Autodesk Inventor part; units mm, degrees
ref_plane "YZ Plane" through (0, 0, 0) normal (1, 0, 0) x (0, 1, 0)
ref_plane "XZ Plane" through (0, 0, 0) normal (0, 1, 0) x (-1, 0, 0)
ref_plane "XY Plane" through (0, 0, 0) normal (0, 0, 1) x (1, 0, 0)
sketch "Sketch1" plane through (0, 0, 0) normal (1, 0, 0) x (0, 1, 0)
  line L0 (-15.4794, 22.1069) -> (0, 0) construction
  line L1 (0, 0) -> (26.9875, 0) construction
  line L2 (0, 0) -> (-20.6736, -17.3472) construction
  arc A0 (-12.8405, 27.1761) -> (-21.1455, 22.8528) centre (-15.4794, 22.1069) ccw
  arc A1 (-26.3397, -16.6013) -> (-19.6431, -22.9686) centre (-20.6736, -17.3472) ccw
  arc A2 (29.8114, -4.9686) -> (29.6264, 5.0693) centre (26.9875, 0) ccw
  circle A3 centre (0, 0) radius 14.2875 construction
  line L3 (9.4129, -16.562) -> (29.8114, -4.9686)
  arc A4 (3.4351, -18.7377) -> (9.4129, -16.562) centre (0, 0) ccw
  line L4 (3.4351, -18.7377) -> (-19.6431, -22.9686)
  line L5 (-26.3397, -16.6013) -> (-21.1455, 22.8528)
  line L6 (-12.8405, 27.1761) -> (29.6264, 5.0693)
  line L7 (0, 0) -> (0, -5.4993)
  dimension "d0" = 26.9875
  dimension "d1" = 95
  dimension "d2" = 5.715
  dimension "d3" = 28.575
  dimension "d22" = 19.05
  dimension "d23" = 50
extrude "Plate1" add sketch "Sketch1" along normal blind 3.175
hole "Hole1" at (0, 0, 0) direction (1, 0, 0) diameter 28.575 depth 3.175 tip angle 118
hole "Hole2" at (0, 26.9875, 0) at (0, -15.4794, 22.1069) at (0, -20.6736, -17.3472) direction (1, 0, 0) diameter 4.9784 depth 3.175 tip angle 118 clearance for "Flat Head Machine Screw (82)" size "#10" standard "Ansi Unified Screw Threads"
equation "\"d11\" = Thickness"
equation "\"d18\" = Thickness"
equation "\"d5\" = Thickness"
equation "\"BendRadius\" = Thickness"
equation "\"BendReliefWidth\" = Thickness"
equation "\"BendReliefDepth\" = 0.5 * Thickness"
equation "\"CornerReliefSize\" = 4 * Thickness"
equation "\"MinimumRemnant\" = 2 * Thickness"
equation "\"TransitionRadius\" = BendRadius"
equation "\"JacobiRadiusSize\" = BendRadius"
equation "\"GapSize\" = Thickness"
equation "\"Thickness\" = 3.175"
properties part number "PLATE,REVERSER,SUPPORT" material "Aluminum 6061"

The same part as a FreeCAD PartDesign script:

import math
import FreeCAD as App
import Part
import Sketcher
Q = App.Units.Quantity

doc = App.newDocument("Part")
body = doc.addObject("PartDesign::Body", "Body")

sketch1 = body.newObject("Sketcher::SketchObject", "Sketch")
sketch1.AttachmentSupport = (doc.getObject("YZ_Plane"), [""])
sketch1.MapMode = "FlatFace"
sketch1.addGeometry(Part.LineSegment(App.Vector(29.6264, 5.0693, 0), App.Vector(-12.8405, 27.1761, 0)), False)
sketch1.addGeometry(Part.ArcOfCircle(Part.Circle(App.Vector(-15.4794, 22.1069, 0), App.Vector(0, 0, 1), 5.714944), math.radians(62.499631), math.radians(172.500559)), False)
sketch1.addGeometry(Part.LineSegment(App.Vector(-21.1455, 22.8528, 0), App.Vector(-26.3397, -16.6013, 0)), False)
sketch1.addGeometry(Part.ArcOfCircle(Part.Circle(App.Vector(-20.6736, -17.3472, 0), App.Vector(0, 0, 1), 5.714985), math.radians(172.500559), math.radians(280.38797)), False)
sketch1.addGeometry(Part.LineSegment(App.Vector(-19.6431, -22.9686, 0), App.Vector(3.4351, -18.7377, 0)), False)
sketch1.addGeometry(Part.ArcOfCircle(Part.Circle(App.Vector(-0.000299, 0.001102, 0), App.Vector(0, 0, 1), 19.051107), math.radians(-79.611283), math.radians(-60.389415)), False)
sketch1.addGeometry(Part.LineSegment(App.Vector(9.4129, -16.562, 0), App.Vector(29.8114, -4.9686, 0)), False)
sketch1.addGeometry(Part.ArcOfCircle(Part.Circle(App.Vector(26.9875, 0, 0), App.Vector(0, 0, 1), 5.715015), math.radians(-60.388299), math.radians(62.500094)), False)
sketch1.addConstraint(Sketcher.Constraint("Tangent", 0, 2, 1, 1))
sketch1.addConstraint(Sketcher.Constraint("Tangent", 1, 2, 2, 1))
sketch1.addConstraint(Sketcher.Constraint("Tangent", 2, 2, 3, 1))
sketch1.addConstraint(Sketcher.Constraint("Tangent", 3, 2, 4, 1))
sketch1.addConstraint(Sketcher.Constraint("Tangent", 4, 2, 5, 1))
sketch1.addConstraint(Sketcher.Constraint("Tangent", 5, 2, 6, 1))
sketch1.addConstraint(Sketcher.Constraint("Tangent", 6, 2, 7, 1))
sketch1.addConstraint(Sketcher.Constraint("Tangent", 7, 2, 0, 1))
sketch1.addConstraint(Sketcher.Constraint("Equal", 1, 3))
sketch1.addConstraint(Sketcher.Constraint("Equal", 3, 7))
sketch1.addConstraint(Sketcher.Constraint("PointOnObject", 7, 3, -1))
sketch1.addConstraint(Sketcher.Constraint("Equal", 4, 6))
sketch1.addConstraint(Sketcher.Constraint("Radius", 1, Q("0.225 in")))
sketch1.addConstraint(Sketcher.Constraint("DistanceX", 5, 3, -1, 1, Q("0 in")))
sketch1.addConstraint(Sketcher.Constraint("DistanceX", -1, 1, 7, 3, Q("1.0625 in")))
sketch1.addConstraint(Sketcher.Constraint("Angle", 0, Q("152.5 deg")))
sketch1.addConstraint(Sketcher.Constraint("Angle", 2, Q("-97.5 deg")))
sketch1.addConstraint(Sketcher.Constraint("Radius", 5, Q("19.051 mm")))
sketch1.addConstraint(Sketcher.Constraint("DistanceX", 2, 2, -1, 1, Q("1.037 in")))
sketch1.addConstraint(Sketcher.Constraint("DistanceX", 1, 2, 7, 3, Q("1.895 in")))
pad1 = body.newObject("PartDesign::Pad", "Pad")
pad1.Profile = sketch1
pad1.Length = Q("0.125 in")

sketch2 = body.newObject("Sketcher::SketchObject", "Sketch001")
sketch2.AttachmentSupport = (doc.getObject("YZ_Plane"), [""])
sketch2.MapMode = "FlatFace"
sketch2.addGeometry(Part.Circle(App.Vector(0, 0, 0), App.Vector(0, 0, 1), 14.2875), False)
sketch2.addConstraint(Sketcher.Constraint("Coincident", 0, 3, -1, 1))
sketch2.addConstraint(Sketcher.Constraint("Diameter", 0, Q("1.125 in")))
doc.recompute()
hole = body.newObject("PartDesign::Hole", "Hole")
hole.Profile = sketch2
hole.ThreadType = "None"
hole.Diameter = Q("1.125 in")
hole.DepthType = "Dimension"
hole.Depth = Q("0.125 in")
hole.DrillPoint = "Angled"
hole.DrillPointAngle = 118
hole.Reversed = True

sketch3 = body.newObject("Sketcher::SketchObject", "Sketch002")
sketch3.AttachmentSupport = (doc.getObject("YZ_Plane"), [""])
sketch3.MapMode = "FlatFace"
sketch3.addGeometry(Part.Circle(App.Vector(26.9875, 0, 0), App.Vector(0, 0, 1), 2.4892), False)
sketch3.addGeometry(Part.Circle(App.Vector(-15.4794, 22.1069, 0), App.Vector(0, 0, 1), 2.4892), False)
sketch3.addGeometry(Part.Circle(App.Vector(-20.6736, -17.3472, 0), App.Vector(0, 0, 1), 2.4892), False)
sketch3.addConstraint(Sketcher.Constraint("Equal", 0, 1))
sketch3.addConstraint(Sketcher.Constraint("Equal", 1, 2))
sketch3.addConstraint(Sketcher.Constraint("PointOnObject", 0, 3, -1))
sketch3.addConstraint(Sketcher.Constraint("Diameter", 0, Q("0.196 in")))
sketch3.addConstraint(Sketcher.Constraint("DistanceX", -1, 1, 0, 3, Q("1.0625 in")))
sketch3.addConstraint(Sketcher.Constraint("DistanceX", 2, 3, 1, 3, Q("0.2045 in")))
sketch3.addConstraint(Sketcher.Constraint("DistanceY", 2, 3, 1, 3, Q("1.5533 in")))
sketch3.addConstraint(Sketcher.Constraint("DistanceX", 1, 3, -1, 1, Q("15.4794 mm")))
sketch3.addConstraint(Sketcher.Constraint("DistanceY", -1, 1, 1, 3, Q("22.107 mm")))
doc.recompute()
hole2 = body.newObject("PartDesign::Hole", "Hole001")
hole2.Profile = sketch3
hole2.ThreadType = "None"
hole2.Diameter = Q("0.196 in")
hole2.DepthType = "Dimension"
hole2.Depth = Q("0.125 in")
hole2.DrillPoint = "Angled"
hole2.DrillPointAngle = 118
hole2.Reversed = True

doc.recompute()
